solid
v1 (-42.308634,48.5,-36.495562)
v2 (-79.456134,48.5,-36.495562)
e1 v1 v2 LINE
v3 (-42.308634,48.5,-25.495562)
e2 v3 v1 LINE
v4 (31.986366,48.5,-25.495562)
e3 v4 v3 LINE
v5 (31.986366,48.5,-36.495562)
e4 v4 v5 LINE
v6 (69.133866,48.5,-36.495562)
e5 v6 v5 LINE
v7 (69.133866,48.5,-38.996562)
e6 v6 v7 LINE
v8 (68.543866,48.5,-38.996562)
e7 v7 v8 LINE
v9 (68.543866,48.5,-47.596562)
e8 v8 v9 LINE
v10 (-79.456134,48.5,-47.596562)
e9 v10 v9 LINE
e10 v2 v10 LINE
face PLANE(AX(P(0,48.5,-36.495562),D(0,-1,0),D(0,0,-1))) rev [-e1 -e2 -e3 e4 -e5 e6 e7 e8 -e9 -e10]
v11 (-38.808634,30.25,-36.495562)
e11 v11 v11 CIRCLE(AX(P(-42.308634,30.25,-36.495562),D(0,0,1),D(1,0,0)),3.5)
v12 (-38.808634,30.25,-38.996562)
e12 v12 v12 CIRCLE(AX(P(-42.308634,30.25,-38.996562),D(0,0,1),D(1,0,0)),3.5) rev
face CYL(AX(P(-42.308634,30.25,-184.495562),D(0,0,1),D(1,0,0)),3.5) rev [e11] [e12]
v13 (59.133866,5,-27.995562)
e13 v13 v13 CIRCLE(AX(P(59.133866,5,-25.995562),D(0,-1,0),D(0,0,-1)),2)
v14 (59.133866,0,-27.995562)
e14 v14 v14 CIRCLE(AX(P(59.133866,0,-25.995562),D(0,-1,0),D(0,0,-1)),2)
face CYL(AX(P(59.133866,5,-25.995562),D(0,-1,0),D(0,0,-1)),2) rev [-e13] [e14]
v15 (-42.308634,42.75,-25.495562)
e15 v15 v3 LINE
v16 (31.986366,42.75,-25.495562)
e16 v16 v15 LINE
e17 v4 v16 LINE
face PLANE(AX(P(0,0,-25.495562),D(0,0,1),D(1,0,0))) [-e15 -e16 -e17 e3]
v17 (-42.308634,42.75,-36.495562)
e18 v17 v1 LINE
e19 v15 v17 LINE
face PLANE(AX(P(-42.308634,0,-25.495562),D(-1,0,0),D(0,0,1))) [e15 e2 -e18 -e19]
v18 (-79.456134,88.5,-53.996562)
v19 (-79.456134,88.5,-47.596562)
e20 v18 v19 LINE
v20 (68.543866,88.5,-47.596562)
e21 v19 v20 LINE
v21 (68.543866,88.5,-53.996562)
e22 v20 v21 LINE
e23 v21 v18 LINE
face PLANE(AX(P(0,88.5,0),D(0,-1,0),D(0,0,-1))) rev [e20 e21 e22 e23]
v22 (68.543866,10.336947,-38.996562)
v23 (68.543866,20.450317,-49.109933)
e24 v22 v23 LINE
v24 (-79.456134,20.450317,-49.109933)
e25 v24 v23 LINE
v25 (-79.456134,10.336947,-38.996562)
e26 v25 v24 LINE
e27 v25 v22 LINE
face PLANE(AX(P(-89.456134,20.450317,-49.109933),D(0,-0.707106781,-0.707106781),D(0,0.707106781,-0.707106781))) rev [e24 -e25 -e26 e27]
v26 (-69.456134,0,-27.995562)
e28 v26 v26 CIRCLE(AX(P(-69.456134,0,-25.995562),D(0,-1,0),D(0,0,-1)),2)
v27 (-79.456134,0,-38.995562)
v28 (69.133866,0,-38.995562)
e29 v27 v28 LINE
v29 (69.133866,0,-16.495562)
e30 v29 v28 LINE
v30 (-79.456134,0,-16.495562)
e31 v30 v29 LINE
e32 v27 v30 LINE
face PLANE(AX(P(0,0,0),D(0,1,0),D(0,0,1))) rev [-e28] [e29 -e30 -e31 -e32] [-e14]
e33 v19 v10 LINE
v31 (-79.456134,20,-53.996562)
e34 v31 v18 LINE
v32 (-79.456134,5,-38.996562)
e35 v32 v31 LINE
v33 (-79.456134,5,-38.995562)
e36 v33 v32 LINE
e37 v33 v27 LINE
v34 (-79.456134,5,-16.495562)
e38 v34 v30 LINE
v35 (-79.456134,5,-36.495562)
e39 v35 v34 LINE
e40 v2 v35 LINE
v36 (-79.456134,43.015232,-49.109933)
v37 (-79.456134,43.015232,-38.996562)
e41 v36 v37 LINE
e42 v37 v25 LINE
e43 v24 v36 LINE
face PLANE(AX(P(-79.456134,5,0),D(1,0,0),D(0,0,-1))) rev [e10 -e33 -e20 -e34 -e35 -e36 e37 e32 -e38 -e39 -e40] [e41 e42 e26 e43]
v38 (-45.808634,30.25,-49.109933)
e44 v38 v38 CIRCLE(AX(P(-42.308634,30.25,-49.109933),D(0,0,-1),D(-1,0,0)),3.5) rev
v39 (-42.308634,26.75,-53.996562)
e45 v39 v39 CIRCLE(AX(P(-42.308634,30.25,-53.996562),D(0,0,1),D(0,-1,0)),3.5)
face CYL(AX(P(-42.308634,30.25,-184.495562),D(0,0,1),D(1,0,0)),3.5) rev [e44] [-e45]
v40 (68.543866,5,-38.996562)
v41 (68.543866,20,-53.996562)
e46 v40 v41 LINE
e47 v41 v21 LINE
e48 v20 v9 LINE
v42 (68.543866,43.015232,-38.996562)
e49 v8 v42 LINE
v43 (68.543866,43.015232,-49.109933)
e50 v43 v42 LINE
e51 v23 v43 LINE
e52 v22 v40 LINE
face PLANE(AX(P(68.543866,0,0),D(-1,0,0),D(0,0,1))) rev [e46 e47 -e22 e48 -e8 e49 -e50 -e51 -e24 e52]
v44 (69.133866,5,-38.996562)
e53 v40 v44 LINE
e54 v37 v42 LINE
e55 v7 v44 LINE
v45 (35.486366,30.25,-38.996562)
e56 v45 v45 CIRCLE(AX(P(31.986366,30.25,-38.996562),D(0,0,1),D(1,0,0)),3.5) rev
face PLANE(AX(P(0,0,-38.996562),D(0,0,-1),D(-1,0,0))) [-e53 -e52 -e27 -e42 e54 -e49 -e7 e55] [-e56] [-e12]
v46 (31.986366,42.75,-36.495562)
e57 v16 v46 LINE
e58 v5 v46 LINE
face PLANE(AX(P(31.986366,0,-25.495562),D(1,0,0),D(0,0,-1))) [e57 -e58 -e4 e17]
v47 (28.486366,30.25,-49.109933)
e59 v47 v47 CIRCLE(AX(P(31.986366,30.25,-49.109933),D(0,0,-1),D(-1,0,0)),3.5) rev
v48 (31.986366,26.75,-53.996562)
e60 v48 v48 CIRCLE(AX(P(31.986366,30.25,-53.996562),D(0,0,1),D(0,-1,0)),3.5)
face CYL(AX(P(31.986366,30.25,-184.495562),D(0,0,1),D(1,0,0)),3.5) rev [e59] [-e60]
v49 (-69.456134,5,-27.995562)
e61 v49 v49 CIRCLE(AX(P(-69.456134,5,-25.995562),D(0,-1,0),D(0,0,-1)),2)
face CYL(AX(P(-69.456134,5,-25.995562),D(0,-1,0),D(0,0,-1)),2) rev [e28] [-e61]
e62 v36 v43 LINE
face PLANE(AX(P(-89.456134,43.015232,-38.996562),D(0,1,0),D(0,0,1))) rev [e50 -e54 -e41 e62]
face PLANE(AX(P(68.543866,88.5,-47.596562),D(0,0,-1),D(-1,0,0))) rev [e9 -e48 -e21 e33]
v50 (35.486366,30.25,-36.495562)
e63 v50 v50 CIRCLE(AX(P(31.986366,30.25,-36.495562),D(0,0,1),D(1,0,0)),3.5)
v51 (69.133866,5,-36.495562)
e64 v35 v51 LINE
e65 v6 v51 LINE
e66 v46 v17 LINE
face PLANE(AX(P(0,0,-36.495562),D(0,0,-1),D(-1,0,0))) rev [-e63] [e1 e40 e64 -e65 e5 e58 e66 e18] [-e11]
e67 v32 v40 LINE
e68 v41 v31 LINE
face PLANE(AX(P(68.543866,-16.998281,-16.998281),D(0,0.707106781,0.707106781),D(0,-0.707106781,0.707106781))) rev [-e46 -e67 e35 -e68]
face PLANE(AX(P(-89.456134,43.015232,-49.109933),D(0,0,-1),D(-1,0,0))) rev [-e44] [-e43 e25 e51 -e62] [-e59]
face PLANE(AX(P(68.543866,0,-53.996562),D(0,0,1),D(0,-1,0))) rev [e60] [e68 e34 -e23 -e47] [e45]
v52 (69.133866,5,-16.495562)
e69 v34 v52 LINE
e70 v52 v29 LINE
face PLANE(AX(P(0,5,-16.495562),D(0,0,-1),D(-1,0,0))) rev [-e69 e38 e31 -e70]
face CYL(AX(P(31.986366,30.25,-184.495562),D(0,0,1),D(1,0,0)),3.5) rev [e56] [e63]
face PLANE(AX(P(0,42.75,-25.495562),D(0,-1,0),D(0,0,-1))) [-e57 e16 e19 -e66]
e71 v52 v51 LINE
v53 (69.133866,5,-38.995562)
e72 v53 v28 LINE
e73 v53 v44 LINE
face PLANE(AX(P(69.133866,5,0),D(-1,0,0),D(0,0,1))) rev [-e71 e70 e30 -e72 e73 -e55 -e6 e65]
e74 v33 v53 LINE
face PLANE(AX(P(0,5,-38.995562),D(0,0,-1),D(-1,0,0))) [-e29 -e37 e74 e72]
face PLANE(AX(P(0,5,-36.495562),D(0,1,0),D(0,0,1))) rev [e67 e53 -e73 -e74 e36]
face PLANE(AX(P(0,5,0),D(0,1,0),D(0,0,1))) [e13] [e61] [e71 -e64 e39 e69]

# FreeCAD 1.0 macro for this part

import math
import FreeCAD as App
import Part
import Sketcher

V = App.Vector
Q = App.Units.Quantity

doc = App.newDocument("Part")
body = doc.addObject("PartDesign::Body", "Body")

sketch1 = body.newObject("Sketcher::SketchObject", "Sketch")
sketch1.AttachmentSupport = (doc.getObject("XZ_Plane"), [""])
sketch1.MapMode = "FlatFace"
sketch1.addGeometry([
    Part.LineSegment(V(-79, -16, 0), V(69, -16, 0)),
    Part.LineSegment(V(69, -16, 0), V(69, -39, 0)),
    Part.LineSegment(V(69, -39, 0), V(-79, -39, 0)),
    Part.LineSegment(V(-79, -39, 0), V(-79, -16, 0)),
], False)
sketch1.addConstraint([
    Sketcher.Constraint("Coincident", 0, 2, 1, 1),
    Sketcher.Constraint("Coincident", 1, 2, 2, 1),
    Sketcher.Constraint("Coincident", 2, 2, 3, 1),
    Sketcher.Constraint("Coincident", 3, 2, 0, 1),
    Sketcher.Constraint("Horizontal", 0),
    Sketcher.Constraint("Vertical", 1),
    Sketcher.Constraint("Horizontal", 2),
    Sketcher.Constraint("Vertical", 3),
    Sketcher.Constraint("DistanceY", 1, 2, 1, 1, 22.5),
    Sketcher.Constraint("DistanceX", 0, 1, 0, 2, 148.59),
    Sketcher.Constraint("DistanceX", -1, 1, 0, 2, 69.133866),
    Sketcher.Constraint("DistanceY", 0, 2, -1, 1, 16.495562),
])
pad1 = body.newObject("PartDesign::Pad", "Pad")
pad1.Profile = sketch1
pad1.Length = 5
pad1.Reversed = True

sketch2 = body.newObject("Sketcher::SketchObject", "Sketch001")
sketch2.AttachmentSupport = (doc.getObject("XY_Plane"), [""])
sketch2.MapMode = "FlatFace"
sketch2.AttachmentOffset = App.Placement(V(0, 0, -38.995562), App.Rotation())
sketch2.addGeometry([
    Part.LineSegment(V(69, 48, 0), V(69, 5, 0)),
    Part.LineSegment(V(69, 5, 0), V(-79, 5, 0)),
    Part.LineSegment(V(-79, 5, 0), V(-79, 48, 0)),
    Part.LineSegment(V(-79, 48, 0), V(69, 48, 0)),
], False)
sketch2.addConstraint([
    Sketcher.Constraint("Coincident", 0, 2, 1, 1),
    Sketcher.Constraint("Coincident", 1, 2, 2, 1),
    Sketcher.Constraint("Coincident", 2, 2, 3, 1),
    Sketcher.Constraint("Coincident", 3, 2, 0, 1),
    Sketcher.Constraint("Vertical", 0),
    Sketcher.Constraint("Horizontal", 1),
    Sketcher.Constraint("Vertical", 2),
    Sketcher.Constraint("Horizontal", 3),
    Sketcher.Constraint("DistanceY", 0, 2, 0, 1, 43.5),
    Sketcher.Constraint("DistanceY", -1, 1, 0, 2, 5.0),
    Sketcher.Constraint("DistanceX", 1, 2, 1, 1, 148.59),
    Sketcher.Constraint("DistanceX", -1, 1, 0, 2, 69.133866),
])
pad2 = body.newObject("PartDesign::Pad", "Pad001")
pad2.Profile = sketch2
pad2.Type = "TwoLengths"
pad2.Length = 0.001
pad2.Length2 = 2.5
pad2.Reversed = True

sketch3 = body.newObject("Sketcher::SketchObject", "Sketch002")
sketch3.AttachmentSupport = (doc.getObject("XZ_Plane"), [""])
sketch3.MapMode = "FlatFace"
sketch3.addGeometry([
    Part.Circle(V(-69.5, -26, 0), V(0, 0, 1), 2),
    Part.Circle(V(59.1, -26, 0), V(0, 0, 1), 2),
], False)
sketch3.addConstraint([
    Sketcher.Constraint("Equal", 0, 1),
    Sketcher.Constraint("Horizontal", 0, 3, 1, 3),
    Sketcher.Constraint("Diameter", 0, 4.0),
    Sketcher.Constraint("DistanceX", 0, 3, 1, 3, 128.59),
    Sketcher.Constraint("DistanceX", 0, 3, -1, 1, 69.456134),
    Sketcher.Constraint("DistanceY", 0, 3, -1, 1, 25.995562),
])
pocket1 = body.newObject("PartDesign::Pocket", "Pocket")
pocket1.Profile = sketch3
pocket1.Length = 5

sketch4 = body.newObject("Sketcher::SketchObject", "Sketch003")
sketch4.AttachmentSupport = (doc.getObject("YZ_Plane"), [""])
sketch4.MapMode = "FlatFace"
sketch4.AttachmentOffset = App.Placement(V(0, 0, -79.456134), App.Rotation())
sketch4.addGeometry([
    Part.LineSegment(V(5, -39, 0), V(48, -39, 0)),
    Part.LineSegment(V(48, -39, 0), V(48, -54, 0)),
    Part.LineSegment(V(48, -54, 0), V(20, -54, 0)),
    Part.LineSegment(V(20, -54, 0), V(5, -39, 0)),
], False)
sketch4.addConstraint([
    Sketcher.Constraint("Coincident", 0, 2, 1, 1),
    Sketcher.Constraint("Coincident", 1, 2, 2, 1),
    Sketcher.Constraint("Coincident", 2, 2, 3, 1),
    Sketcher.Constraint("Coincident", 3, 2, 0, 1),
    Sketcher.Constraint("Horizontal", 0),
    Sketcher.Constraint("Vertical", 1),
    Sketcher.Constraint("Horizontal", 2),
    Sketcher.Constraint("DistanceY", 1, 2, 1, 1, 15.0),
    Sketcher.Constraint("Angle", 3, Q("135 deg")),
    Sketcher.Constraint("DistanceX", 0, 1, 0, 2, 43.5),
    Sketcher.Constraint("DistanceX", -1, 1, 2, 2, 20.0),
    Sketcher.Constraint("DistanceY", 0, 2, -1, 1, 38.996562),
])
pad3 = body.newObject("PartDesign::Pad", "Pad002")
pad3.Profile = sketch4
pad3.Length = 148

sketch5 = body.newObject("Sketcher::SketchObject", "Sketch004")
sketch5.AttachmentSupport = (doc.getObject("XY_Plane"), [""])
sketch5.MapMode = "FlatFace"
sketch5.AttachmentOffset = App.Placement(V(0, 0, -36.495562), App.Rotation())
sketch5.addGeometry([
    Part.ArcOfCircle(Part.Circle(V(32, 30.2, 0), V(0, 0, 1), 3.5), math.radians(90), math.radians(270)),
    Part.ArcOfCircle(Part.Circle(V(32, 30.3, 0), V(0, 0, 1), 3.5), math.radians(-90), math.radians(0)),
    Part.ArcOfCircle(Part.Circle(V(32, 30.2, 0), V(0, 0, 1), 3.5), math.radians(0), math.radians(90)),
    Part.ArcOfCircle(Part.Circle(V(-42.3, 30.2, 0), V(0, 0, 1), 3.5), math.radians(0), math.radians(90)),
    Part.ArcOfCircle(Part.Circle(V(-42.3, 30.2, 0), V(0, 0, 1), 3.5), math.radians(90), math.radians(270)),
    Part.ArcOfCircle(Part.Circle(V(-42.3, 30.3, 0), V(0, 0, 1), 3.5), math.radians(-90), math.radians(0)),
], False)
sketch5.addConstraint([
    Sketcher.Constraint("Tangent", 0, 2, 1, 1),
    Sketcher.Constraint("Tangent", 1, 2, 2, 1),
    Sketcher.Constraint("Tangent", 2, 2, 0, 1),
    Sketcher.Constraint("Tangent", 3, 2, 4, 1),
    Sketcher.Constraint("Tangent", 4, 2, 5, 1),
    Sketcher.Constraint("Tangent", 5, 2, 3, 1),
    Sketcher.Constraint("Equal", 2, 3),
    Sketcher.Constraint("Horizontal", 2, 3, 3, 3),
    Sketcher.Constraint("Horizontal", 5, 3, 1, 2),
    Sketcher.Constraint("Horizontal", 1, 2, 5, 2),
    Sketcher.Constraint("Vertical", 2, 3, 0, 2),
    Sketcher.Constraint("Vertical", 0, 2, 2, 2),
    Sketcher.Constraint("Vertical", 5, 3, 3, 2),
    Sketcher.Constraint("Vertical", 3, 2, 4, 2),
    Sketcher.Constraint("Radius", 0, 3.5),
    Sketcher.Constraint("DistanceY", -1, 1, 0, 3, 30.25),
    Sketcher.Constraint("DistanceX", 3, 3, 1, 3, 74.295),
    Sketcher.Constraint("DistanceX", -1, 1, 0, 3, 31.986366),
])
pocket2 = body.newObject("PartDesign::Pocket", "Pocket001")
pocket2.Profile = sketch5
pocket2.Length = 148

sketch6 = body.newObject("Sketcher::SketchObject", "Sketch005")
sketch6.AttachmentSupport = (doc.getObject("YZ_Plane"), [""])
sketch6.MapMode = "FlatFace"
sketch6.AttachmentOffset = App.Placement(V(0, 0, 68.543866), App.Rotation())
sketch6.addGeometry([
    Part.LineSegment(V(43, -49, 0), V(43, -39, 0)),
    Part.LineSegment(V(43, -39, 0), V(10, -39, 0)),
    Part.LineSegment(V(10, -39, 0), V(20, -49, 0)),
    Part.LineSegment(V(20, -49, 0), V(43, -49, 0)),
], False)
sketch6.addConstraint([
    Sketcher.Constraint("Coincident", 0, 2, 1, 1),
    Sketcher.Constraint("Coincident", 1, 2, 2, 1),
    Sketcher.Constraint("Coincident", 2, 2, 3, 1),
    Sketcher.Constraint("Coincident", 3, 2, 0, 1),
    Sketcher.Constraint("Vertical", 0),
    Sketcher.Constraint("Horizontal", 1),
    Sketcher.Constraint("Horizontal", 3),
    Sketcher.Constraint("Angle", 2, Q("-45 deg")),
    Sketcher.Constraint("DistanceY", 0, 1, 0, 2, 10.113371),
    Sketcher.Constraint("DistanceX", 1, 2, 1, 1, 32.678286),
    Sketcher.Constraint("DistanceX", -1, 1, 0, 2, 43.015232),
    Sketcher.Constraint("DistanceY", 0, 2, -1, 1, 38.996562),
])
pocket3 = body.newObject("PartDesign::Pocket", "Pocket002")
pocket3.Profile = sketch6
pocket3.Length = 158

sketch7 = body.newObject("Sketcher::SketchObject", "Sketch006")
sketch7.AttachmentSupport = (doc.getObject("XY_Plane"), [""])
sketch7.MapMode = "FlatFace"
sketch7.AttachmentOffset = App.Placement(V(0, 0, -36.495562), App.Rotation())
sketch7.addGeometry([
    Part.LineSegment(V(-42, 48, 0), V(-42, 43, 0)),
    Part.LineSegment(V(-42, 43, 0), V(32, 43, 0)),
    Part.LineSegment(V(32, 43, 0), V(32, 48, 0)),
    Part.LineSegment(V(32, 48, 0), V(-42, 48, 0)),
], False)
sketch7.addConstraint([
    Sketcher.Constraint("Coincident", 0, 2, 1, 1),
    Sketcher.Constraint("Coincident", 1, 2, 2, 1),
    Sketcher.Constraint("Coincident", 2, 2, 3, 1),
    Sketcher.Constraint("Coincident", 3, 2, 0, 1),
    Sketcher.Constraint("Vertical", 0),
    Sketcher.Constraint("Horizontal", 1),
    Sketcher.Constraint("Vertical", 2),
    Sketcher.Constraint("Horizontal", 3),
    Sketcher.Constraint("DistanceY", 0, 2, 0, 1, 5.75),
    Sketcher.Constraint("DistanceY", -1, 1, 2, 2, 48.5),
    Sketcher.Constraint("DistanceX", 1, 1, 1, 2, 74.295),
    Sketcher.Constraint("DistanceX", 0, 2, -1, 1, 42.308634),
])
pad4 = body.newObject("PartDesign::Pad", "Pad003")
pad4.Profile = sketch7
pad4.Length = 11

sketch8 = body.newObject("Sketcher::SketchObject", "Sketch007")
sketch8.AttachmentSupport = (doc.getObject("XZ_Plane"), [""])
sketch8.MapMode = "FlatFace"
sketch8.AttachmentOffset = App.Placement(V(0, 0, -48.5), App.Rotation())
sketch8.addGeometry([
    Part.LineSegment(V(-79, -54, 0), V(-79, -48, 0)),
    Part.LineSegment(V(-79, -48, 0), V(69, -48, 0)),
    Part.LineSegment(V(69, -48, 0), V(69, -54, 0)),
    Part.LineSegment(V(69, -54, 0), V(-79, -54, 0)),
], False)
sketch8.addConstraint([
    Sketcher.Constraint("Coincident", 0, 2, 1, 1),
    Sketcher.Constraint("Coincident", 1, 2, 2, 1),
    Sketcher.Constraint("Coincident", 2, 2, 3, 1),
    Sketcher.Constraint("Coincident", 3, 2, 0, 1),
    Sketcher.Constraint("Vertical", 0),
    Sketcher.Constraint("Horizontal", 1),
    Sketcher.Constraint("Vertical", 2),
    Sketcher.Constraint("Horizontal", 3),
    Sketcher.Constraint("DistanceX", 1, 1, 1, 2, 148.0),
    Sketcher.Constraint("DistanceY", 0, 1, 0, 2, 6.4),
    Sketcher.Constraint("DistanceX", 0, 2, -1, 1, 79.456134),
    Sketcher.Constraint("DistanceY", 0, 2, -1, 1, 47.596562),
])
pad5 = body.newObject("PartDesign::Pad", "Pad004")
pad5.Profile = sketch8
pad5.Length = 40
pad5.Reversed = True

doc.recompute()
